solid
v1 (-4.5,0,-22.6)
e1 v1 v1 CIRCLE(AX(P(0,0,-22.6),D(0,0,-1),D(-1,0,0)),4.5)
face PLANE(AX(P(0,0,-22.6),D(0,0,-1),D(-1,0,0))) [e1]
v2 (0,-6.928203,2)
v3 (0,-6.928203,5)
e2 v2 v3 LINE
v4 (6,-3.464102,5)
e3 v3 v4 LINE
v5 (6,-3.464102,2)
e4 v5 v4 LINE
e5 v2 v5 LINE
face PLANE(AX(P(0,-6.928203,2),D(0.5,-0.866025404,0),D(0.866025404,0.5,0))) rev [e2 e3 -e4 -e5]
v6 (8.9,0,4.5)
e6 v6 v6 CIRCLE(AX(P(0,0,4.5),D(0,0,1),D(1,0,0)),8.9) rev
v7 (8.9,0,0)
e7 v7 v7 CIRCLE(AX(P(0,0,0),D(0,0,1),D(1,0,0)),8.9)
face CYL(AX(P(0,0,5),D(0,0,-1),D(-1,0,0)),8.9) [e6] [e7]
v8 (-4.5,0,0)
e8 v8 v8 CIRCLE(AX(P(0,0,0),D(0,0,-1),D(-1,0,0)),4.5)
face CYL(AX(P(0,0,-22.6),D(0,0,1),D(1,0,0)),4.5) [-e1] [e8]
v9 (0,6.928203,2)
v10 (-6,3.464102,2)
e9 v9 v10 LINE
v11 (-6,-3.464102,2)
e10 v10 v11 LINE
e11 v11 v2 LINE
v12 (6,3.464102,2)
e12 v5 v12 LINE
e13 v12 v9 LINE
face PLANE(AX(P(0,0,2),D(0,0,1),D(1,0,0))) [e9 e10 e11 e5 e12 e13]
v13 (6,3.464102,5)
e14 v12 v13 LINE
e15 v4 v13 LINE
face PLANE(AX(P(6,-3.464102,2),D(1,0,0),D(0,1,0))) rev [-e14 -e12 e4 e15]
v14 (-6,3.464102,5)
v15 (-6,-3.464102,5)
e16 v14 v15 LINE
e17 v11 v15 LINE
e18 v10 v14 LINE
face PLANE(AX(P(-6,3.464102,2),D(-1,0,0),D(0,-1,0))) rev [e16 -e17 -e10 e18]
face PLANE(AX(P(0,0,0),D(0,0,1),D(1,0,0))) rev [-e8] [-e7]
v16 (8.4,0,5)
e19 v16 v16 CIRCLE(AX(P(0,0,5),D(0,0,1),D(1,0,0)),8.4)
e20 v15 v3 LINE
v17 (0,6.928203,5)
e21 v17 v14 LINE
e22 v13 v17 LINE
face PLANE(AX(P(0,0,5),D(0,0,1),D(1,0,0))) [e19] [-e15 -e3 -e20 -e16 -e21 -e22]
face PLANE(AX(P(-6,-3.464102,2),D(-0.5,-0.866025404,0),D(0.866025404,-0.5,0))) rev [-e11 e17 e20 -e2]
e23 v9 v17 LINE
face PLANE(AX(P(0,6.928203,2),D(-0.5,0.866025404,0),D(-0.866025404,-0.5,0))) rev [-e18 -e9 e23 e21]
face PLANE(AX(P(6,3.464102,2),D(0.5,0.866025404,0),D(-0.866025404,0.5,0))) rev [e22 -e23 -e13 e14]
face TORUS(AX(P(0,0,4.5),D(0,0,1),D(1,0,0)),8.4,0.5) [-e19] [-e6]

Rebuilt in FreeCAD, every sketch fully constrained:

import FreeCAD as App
import Part
import Sketcher

V = App.Vector
Q = App.Units.Quantity


def edges_at(feature, points):
    """Names of the edges that pass closest to the given points."""
    edges = feature.Shape.Edges
    near = lambda p: min(range(len(edges)), key=lambda i: edges[i].distToShape(Part.Vertex(*p))[0])
    return sorted({f"Edge{near(p) + 1}" for p in points})

doc = App.newDocument("Part")
body = doc.addObject("PartDesign::Body", "Body")

# Sketch on XY plane
sketch1 = body.newObject("Sketcher::SketchObject", "Sketch")
sketch1.AttachmentSupport = (doc.getObject("XY_Plane"), [""])
sketch1.MapMode = "FlatFace"
sketch1.addGeometry(Part.Circle(V(0, 0, 0), V(0, 0, 1), 8.9), False)
sketch1.addConstraint(Sketcher.Constraint("Coincident", 0, 3, -1, 1))
sketch1.addConstraint(Sketcher.Constraint("Diameter", 0, Q("17.8 mm")))
pad1 = body.newObject("PartDesign::Pad", "Pad")
pad1.Profile = sketch1
pad1.Length = 5

# Sketch on XY plane
sketch2 = body.newObject("Sketcher::SketchObject", "Sketch001")
sketch2.AttachmentSupport = (doc.getObject("XY_Plane"), [""])
sketch2.MapMode = "FlatFace"
sketch2.AttachmentOffset = App.Placement(V(0, 0, 5), App.Rotation())
sketch2.addGeometry(Part.LineSegment(V(-6, -3.464102, 0), V(0, -6.928203, 0)), False)
sketch2.addGeometry(Part.LineSegment(V(0, -6.928203, 0), V(6, -3.464102, 0)), False)
sketch2.addGeometry(Part.LineSegment(V(6, -3.464102, 0), V(6, 3.464102, 0)), False)
sketch2.addGeometry(Part.LineSegment(V(6, 3.464102, 0), V(0, 6.928203, 0)), False)
sketch2.addGeometry(Part.LineSegment(V(0, 6.928203, 0), V(-6, 3.464102, 0)), False)
sketch2.addGeometry(Part.LineSegment(V(-6, 3.464102, 0), V(-6, -3.464102, 0)), False)
sketch2.addConstraint(Sketcher.Constraint("Coincident", 0, 2, 1, 1))
sketch2.addConstraint(Sketcher.Constraint("Coincident", 1, 2, 2, 1))
sketch2.addConstraint(Sketcher.Constraint("Coincident", 2, 2, 3, 1))
sketch2.addConstraint(Sketcher.Constraint("Coincident", 3, 2, 4, 1))
sketch2.addConstraint(Sketcher.Constraint("Coincident", 4, 2, 5, 1))
sketch2.addConstraint(Sketcher.Constraint("Coincident", 5, 2, 0, 1))
sketch2.addConstraint(Sketcher.Constraint("Vertical", 2))
sketch2.addConstraint(Sketcher.Constraint("Vertical", 5))
sketch2.addConstraint(Sketcher.Constraint("Symmetric", 0, 2, 3, 2, -1, 1))
sketch2.addConstraint(Sketcher.Constraint("Symmetric", 1, 2, 4, 2, -1, 1))
sketch2.addConstraint(Sketcher.Constraint("PointOnObject", 0, 2, -2))
sketch2.addConstraint(Sketcher.Constraint("Parallel", 0, 3))
sketch2.addConstraint(Sketcher.Constraint("Horizontal", 2, 2, 4, 2))
sketch2.addConstraint(Sketcher.Constraint("Angle", 0, Q("-30 deg")))
sketch2.addConstraint(Sketcher.Constraint("DistanceX", -1, 1, 1, 2, Q("6 mm")))
sketch2.addConstraint(Sketcher.Constraint("DistanceY", 1, 2, -1, 1, Q("3.464102 mm")))
pocket1 = body.newObject("PartDesign::Pocket", "Pocket")
pocket1.Profile = sketch2
pocket1.Length = 3
doc.recompute()

fillet = body.newObject("PartDesign::Fillet", "Fillet")
fillet.Base = (pocket1, edges_at(pocket1, [(-8.9, 0, 5)]))
fillet.Radius = 0.5

# Sketch on XY plane
sketch3 = body.newObject("Sketcher::SketchObject", "Sketch002")
sketch3.AttachmentSupport = (doc.getObject("XY_Plane"), [""])
sketch3.MapMode = "FlatFace"
sketch3.addGeometry(Part.Circle(V(0, 0, 0), V(0, 0, 1), 4.5), False)
sketch3.addConstraint(Sketcher.Constraint("Coincident", 0, 3, -1, 1))
sketch3.addConstraint(Sketcher.Constraint("Diameter", 0, Q("9 mm")))
pad2 = body.newObject("PartDesign::Pad", "Pad001")
pad2.Profile = sketch3
pad2.Length = 22.6
pad2.Reversed = True

doc.recompute()
